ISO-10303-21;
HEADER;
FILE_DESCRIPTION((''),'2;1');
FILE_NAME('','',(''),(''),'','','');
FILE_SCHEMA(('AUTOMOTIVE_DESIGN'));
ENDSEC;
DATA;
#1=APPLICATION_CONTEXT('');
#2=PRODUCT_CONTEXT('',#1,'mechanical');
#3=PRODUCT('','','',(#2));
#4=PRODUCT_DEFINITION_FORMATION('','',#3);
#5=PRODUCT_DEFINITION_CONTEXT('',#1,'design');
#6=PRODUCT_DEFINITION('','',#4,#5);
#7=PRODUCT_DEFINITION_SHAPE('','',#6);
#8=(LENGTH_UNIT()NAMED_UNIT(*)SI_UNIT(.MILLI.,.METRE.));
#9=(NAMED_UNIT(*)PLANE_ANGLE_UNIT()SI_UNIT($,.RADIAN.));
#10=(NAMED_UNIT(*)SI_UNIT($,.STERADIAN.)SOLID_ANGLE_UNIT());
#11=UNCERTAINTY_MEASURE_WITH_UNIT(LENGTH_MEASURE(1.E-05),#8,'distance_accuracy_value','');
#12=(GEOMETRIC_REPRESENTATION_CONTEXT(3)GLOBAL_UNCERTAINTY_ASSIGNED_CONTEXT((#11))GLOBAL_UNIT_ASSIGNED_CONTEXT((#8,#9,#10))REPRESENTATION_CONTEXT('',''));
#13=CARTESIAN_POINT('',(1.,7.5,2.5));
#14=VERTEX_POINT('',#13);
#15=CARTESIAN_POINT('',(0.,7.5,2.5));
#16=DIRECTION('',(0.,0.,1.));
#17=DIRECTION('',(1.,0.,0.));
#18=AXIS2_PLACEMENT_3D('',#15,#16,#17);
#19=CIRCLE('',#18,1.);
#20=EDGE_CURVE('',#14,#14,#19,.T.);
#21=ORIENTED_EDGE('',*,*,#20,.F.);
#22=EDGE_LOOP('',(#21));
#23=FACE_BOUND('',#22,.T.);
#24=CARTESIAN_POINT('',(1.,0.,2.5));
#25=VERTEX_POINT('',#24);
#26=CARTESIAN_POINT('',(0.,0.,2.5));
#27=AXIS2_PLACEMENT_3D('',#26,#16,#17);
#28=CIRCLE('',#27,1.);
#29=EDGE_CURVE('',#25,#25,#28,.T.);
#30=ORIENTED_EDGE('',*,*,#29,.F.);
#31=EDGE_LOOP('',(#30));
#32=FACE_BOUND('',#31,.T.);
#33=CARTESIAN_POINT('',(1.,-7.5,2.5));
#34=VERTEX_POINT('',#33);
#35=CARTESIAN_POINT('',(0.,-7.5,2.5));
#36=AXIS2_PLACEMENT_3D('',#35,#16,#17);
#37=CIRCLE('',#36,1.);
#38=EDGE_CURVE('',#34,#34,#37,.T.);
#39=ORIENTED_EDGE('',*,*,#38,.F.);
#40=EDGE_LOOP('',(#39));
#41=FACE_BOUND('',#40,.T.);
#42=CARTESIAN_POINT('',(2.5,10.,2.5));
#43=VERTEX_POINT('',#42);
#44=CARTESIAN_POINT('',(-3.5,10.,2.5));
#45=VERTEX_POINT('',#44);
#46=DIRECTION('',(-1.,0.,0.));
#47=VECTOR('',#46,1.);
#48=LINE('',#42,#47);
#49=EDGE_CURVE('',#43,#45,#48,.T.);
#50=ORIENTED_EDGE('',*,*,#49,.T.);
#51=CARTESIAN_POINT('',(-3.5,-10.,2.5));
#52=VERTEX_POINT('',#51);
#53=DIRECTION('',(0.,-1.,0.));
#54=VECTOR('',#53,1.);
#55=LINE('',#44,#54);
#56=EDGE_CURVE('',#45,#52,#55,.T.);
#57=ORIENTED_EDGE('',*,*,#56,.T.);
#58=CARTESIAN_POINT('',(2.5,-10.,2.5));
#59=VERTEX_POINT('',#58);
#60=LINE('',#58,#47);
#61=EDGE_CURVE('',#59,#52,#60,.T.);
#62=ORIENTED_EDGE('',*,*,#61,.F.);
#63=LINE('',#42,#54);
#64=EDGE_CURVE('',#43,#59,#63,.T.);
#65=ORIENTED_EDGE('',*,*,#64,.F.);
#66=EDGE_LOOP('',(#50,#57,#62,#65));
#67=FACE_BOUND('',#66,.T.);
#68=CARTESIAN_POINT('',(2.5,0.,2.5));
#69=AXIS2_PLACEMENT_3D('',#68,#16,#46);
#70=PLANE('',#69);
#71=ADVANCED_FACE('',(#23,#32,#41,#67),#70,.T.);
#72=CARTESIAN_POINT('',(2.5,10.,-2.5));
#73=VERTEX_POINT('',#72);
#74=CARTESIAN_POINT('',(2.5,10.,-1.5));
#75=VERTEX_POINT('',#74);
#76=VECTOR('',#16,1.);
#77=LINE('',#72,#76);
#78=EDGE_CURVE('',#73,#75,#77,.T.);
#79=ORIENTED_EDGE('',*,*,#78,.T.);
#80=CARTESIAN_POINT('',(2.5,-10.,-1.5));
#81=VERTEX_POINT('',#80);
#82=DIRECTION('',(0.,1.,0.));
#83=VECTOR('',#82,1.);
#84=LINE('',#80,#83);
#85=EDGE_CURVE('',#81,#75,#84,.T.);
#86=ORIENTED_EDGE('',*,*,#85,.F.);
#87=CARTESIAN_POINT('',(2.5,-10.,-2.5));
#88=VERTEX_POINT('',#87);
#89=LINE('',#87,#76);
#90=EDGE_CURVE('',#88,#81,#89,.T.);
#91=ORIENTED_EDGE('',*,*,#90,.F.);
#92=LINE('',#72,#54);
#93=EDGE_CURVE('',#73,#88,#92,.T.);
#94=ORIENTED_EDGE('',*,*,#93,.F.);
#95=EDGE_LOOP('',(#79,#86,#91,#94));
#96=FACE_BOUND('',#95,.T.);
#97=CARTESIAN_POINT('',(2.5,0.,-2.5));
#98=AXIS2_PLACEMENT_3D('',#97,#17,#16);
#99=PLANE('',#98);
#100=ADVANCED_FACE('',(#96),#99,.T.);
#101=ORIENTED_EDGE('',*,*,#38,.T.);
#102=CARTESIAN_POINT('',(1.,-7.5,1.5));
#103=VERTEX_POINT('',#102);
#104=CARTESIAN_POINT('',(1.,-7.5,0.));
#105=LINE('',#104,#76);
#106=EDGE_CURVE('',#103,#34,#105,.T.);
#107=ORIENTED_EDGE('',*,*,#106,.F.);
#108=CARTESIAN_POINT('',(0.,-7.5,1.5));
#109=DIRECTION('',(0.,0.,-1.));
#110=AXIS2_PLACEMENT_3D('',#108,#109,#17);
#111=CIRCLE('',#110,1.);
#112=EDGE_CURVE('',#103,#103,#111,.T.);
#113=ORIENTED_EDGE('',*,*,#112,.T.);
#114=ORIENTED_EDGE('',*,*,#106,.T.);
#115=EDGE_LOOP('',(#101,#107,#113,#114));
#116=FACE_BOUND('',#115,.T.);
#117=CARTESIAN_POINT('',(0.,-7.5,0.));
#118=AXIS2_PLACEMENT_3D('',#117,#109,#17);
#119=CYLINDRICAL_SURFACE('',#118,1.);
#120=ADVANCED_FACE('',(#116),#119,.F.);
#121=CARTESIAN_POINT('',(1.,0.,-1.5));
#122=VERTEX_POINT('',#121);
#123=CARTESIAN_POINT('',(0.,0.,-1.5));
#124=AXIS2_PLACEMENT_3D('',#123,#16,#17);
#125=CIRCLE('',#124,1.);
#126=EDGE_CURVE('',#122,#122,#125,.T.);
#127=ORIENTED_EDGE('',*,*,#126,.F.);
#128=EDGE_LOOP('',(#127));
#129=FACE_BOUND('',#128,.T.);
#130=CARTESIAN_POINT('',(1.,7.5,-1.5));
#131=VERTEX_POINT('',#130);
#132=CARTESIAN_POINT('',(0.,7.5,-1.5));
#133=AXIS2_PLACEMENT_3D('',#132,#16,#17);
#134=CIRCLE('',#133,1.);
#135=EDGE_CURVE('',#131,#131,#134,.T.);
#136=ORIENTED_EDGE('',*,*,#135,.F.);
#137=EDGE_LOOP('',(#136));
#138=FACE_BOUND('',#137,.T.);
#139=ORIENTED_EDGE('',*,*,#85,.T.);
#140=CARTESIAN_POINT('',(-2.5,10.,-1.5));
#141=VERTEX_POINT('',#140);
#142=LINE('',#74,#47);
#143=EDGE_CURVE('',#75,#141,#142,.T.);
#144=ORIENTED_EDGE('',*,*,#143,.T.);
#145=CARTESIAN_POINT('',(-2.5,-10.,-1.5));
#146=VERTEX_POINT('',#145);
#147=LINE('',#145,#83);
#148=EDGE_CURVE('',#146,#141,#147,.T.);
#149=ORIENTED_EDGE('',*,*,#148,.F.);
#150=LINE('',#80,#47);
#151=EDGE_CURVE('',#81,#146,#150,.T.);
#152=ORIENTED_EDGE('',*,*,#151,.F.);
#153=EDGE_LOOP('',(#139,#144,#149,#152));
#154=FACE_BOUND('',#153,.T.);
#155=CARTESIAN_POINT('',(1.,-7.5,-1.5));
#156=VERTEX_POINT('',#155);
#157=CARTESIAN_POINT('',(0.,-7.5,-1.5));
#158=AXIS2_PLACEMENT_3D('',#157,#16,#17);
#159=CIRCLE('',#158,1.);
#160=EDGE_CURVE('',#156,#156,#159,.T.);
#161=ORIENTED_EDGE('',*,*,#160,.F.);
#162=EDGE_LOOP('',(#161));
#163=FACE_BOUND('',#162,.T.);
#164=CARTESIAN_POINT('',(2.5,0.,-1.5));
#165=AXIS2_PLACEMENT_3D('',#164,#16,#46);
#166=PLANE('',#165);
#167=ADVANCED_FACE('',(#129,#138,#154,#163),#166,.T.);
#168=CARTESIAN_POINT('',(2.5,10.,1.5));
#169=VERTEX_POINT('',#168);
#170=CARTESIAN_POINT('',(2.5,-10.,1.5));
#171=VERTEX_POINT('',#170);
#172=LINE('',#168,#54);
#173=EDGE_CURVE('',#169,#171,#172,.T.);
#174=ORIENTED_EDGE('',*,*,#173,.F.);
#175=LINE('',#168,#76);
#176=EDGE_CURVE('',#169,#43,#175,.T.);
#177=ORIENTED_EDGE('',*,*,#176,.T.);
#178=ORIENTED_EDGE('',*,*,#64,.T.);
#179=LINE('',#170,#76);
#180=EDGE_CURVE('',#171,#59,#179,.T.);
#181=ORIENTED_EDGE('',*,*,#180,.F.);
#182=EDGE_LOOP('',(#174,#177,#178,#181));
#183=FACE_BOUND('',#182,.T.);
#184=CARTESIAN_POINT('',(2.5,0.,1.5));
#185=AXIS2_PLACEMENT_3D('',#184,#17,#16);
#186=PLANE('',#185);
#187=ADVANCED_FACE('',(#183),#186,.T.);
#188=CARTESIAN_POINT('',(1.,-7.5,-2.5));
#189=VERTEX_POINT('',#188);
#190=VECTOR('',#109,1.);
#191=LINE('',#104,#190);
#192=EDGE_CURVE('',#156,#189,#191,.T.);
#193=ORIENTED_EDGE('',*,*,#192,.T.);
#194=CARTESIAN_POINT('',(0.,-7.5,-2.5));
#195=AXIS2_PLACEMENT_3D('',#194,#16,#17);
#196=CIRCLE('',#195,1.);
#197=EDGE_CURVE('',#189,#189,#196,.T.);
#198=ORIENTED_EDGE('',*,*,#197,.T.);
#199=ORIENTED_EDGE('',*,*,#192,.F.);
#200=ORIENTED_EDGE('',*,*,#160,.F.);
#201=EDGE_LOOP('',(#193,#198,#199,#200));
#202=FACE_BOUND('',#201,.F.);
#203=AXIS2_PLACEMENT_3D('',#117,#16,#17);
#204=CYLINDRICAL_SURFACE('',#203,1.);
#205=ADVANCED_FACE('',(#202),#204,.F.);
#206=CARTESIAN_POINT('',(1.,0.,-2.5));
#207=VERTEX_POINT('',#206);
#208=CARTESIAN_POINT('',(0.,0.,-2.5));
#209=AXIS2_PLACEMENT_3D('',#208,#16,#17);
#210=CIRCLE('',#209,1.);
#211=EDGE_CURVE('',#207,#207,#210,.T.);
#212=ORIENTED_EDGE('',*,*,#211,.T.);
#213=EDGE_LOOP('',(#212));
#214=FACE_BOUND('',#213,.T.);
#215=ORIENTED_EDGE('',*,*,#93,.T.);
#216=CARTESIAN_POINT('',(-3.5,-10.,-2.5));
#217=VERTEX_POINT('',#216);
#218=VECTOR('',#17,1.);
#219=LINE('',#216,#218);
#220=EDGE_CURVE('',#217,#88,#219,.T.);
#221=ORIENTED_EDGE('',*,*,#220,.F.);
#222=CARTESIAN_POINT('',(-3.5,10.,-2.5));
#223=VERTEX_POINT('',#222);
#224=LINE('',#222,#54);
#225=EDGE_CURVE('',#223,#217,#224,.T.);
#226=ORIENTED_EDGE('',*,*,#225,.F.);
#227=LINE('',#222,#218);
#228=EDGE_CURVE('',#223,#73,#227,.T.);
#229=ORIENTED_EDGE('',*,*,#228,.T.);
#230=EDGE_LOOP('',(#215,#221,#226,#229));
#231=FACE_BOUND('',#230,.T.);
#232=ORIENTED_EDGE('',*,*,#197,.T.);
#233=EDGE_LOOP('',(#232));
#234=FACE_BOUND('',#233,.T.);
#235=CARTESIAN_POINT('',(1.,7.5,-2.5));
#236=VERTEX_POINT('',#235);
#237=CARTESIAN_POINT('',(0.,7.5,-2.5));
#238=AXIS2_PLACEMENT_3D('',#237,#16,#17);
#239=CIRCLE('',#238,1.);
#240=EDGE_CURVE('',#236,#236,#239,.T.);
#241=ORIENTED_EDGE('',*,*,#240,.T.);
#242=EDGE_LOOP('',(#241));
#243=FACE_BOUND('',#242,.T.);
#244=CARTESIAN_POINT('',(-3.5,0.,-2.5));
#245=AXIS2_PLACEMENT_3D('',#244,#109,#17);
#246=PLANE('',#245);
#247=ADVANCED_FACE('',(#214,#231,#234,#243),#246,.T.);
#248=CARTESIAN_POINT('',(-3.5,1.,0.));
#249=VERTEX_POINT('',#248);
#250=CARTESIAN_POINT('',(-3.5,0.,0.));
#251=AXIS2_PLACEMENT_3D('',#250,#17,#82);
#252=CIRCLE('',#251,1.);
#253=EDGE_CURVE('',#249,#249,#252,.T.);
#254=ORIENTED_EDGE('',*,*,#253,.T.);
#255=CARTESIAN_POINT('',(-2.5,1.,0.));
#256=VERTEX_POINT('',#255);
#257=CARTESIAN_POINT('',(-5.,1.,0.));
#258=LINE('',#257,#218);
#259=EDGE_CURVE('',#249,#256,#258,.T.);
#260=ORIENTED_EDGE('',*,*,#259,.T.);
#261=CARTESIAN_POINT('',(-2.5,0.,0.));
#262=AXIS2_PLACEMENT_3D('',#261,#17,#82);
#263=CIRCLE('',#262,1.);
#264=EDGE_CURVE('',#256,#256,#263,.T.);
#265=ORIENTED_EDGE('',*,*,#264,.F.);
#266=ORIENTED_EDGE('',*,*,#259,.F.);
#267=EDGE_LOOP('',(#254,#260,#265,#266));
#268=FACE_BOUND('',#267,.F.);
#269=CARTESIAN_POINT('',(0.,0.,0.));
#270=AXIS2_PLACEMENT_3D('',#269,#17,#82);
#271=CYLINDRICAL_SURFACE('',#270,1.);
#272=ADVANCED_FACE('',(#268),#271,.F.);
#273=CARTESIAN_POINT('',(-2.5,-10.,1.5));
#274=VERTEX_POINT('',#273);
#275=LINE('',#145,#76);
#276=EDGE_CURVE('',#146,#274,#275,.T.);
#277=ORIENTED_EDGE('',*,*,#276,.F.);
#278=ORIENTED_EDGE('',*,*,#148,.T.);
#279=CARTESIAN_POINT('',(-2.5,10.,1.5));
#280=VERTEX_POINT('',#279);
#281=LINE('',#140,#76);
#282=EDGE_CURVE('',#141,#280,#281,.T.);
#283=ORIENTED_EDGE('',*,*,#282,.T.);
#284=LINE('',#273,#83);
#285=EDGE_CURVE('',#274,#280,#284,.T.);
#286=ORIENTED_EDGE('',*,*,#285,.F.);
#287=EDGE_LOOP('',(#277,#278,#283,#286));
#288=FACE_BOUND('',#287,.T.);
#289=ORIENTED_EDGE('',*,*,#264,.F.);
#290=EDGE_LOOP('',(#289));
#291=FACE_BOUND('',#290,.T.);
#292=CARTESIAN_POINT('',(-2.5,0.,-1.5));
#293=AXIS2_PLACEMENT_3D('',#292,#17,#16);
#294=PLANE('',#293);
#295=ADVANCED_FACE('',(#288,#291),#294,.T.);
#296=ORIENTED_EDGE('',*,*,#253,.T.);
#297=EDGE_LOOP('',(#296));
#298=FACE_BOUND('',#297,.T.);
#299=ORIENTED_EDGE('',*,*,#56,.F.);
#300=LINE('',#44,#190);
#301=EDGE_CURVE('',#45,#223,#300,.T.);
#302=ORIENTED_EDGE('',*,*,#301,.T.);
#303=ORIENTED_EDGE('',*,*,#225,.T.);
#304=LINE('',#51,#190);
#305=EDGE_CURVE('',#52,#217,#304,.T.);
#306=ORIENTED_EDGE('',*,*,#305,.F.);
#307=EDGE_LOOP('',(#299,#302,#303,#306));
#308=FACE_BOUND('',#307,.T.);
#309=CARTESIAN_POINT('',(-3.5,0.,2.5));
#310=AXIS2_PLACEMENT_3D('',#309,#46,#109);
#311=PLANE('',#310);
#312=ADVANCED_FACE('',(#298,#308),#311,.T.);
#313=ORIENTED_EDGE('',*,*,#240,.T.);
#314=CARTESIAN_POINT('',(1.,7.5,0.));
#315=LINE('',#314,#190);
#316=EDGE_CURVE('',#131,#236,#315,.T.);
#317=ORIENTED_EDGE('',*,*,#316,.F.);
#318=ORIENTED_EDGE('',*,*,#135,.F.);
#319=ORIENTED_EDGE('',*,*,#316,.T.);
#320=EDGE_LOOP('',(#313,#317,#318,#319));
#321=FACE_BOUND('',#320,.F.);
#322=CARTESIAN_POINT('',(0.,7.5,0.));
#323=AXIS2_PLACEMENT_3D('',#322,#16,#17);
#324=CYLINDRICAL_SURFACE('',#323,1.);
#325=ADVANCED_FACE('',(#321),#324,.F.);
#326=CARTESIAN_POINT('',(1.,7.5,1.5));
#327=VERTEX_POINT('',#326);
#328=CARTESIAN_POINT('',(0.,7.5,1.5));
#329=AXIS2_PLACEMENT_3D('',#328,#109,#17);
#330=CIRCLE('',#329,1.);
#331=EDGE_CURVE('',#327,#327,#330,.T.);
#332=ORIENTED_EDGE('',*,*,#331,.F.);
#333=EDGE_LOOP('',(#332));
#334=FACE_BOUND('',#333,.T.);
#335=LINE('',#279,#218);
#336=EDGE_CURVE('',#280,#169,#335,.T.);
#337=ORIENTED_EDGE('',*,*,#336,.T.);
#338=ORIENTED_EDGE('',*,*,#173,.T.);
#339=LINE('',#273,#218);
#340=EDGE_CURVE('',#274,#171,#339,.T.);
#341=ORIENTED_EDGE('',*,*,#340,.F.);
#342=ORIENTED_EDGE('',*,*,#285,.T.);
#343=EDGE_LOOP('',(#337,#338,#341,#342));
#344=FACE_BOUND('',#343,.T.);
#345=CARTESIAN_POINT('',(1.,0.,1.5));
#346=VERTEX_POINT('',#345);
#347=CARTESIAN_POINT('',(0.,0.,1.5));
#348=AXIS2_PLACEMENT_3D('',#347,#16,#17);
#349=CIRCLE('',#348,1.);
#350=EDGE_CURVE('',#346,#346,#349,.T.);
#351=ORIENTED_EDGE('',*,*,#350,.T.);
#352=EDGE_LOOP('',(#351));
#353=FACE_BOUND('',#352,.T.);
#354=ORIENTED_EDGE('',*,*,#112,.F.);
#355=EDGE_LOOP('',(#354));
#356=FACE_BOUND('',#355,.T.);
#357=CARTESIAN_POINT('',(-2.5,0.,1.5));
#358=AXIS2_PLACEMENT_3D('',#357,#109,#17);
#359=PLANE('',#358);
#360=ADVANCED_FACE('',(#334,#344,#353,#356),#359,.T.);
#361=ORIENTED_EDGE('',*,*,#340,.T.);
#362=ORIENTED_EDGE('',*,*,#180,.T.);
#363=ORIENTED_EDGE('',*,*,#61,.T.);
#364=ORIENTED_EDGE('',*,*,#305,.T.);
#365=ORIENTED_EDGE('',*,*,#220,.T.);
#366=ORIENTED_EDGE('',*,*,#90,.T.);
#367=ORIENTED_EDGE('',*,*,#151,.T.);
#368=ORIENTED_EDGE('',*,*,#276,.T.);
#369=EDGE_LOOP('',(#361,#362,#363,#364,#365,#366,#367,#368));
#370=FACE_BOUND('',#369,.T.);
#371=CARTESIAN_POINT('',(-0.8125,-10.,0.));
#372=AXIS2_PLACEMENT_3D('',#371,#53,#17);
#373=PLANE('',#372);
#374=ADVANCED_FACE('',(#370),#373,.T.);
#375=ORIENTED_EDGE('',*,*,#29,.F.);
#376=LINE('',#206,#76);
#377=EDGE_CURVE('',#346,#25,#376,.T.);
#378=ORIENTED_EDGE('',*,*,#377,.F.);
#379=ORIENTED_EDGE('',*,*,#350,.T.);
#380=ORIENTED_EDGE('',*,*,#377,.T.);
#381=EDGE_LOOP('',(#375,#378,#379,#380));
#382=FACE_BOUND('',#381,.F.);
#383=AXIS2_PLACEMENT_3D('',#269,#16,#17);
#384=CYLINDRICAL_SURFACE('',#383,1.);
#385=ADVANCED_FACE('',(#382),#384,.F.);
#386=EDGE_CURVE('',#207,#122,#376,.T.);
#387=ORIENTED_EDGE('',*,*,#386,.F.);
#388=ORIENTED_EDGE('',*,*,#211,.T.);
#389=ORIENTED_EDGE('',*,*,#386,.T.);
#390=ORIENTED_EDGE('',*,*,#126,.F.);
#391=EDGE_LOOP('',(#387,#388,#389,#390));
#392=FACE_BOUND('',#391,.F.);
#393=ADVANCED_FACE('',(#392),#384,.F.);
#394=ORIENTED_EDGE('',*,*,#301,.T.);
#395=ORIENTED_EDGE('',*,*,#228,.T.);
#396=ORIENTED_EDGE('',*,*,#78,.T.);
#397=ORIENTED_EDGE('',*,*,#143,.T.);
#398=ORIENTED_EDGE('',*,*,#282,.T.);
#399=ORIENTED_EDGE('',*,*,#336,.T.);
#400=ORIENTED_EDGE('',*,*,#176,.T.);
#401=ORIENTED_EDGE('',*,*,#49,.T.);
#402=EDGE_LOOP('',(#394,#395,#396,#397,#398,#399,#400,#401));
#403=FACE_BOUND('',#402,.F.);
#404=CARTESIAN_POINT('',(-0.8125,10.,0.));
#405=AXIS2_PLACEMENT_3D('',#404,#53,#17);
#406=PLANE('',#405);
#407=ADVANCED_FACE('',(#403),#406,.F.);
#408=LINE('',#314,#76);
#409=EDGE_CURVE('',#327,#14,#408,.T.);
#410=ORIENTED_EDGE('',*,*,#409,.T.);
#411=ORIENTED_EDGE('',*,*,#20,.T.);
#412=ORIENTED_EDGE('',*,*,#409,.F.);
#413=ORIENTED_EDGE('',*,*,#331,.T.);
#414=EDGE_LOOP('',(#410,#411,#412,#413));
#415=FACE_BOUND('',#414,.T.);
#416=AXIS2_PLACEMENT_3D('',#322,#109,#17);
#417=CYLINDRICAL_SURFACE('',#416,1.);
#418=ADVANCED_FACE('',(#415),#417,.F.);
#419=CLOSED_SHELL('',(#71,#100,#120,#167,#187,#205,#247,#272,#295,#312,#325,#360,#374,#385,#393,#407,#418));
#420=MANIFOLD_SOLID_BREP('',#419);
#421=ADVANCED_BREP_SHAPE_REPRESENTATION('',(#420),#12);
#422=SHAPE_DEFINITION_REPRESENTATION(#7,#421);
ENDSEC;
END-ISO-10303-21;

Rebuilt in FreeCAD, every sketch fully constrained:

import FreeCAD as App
import Part
import Sketcher
Q = App.Units.Quantity

doc = App.newDocument("Part")
body = doc.addObject("PartDesign::Body", "Body")

sketch1 = body.newObject("Sketcher::SketchObject", "Sketch")
sketch1.AttachmentSupport = (doc.getObject("XZ_Plane"), [""])
sketch1.MapMode = "FlatFace"
sketch1.addGeometry([
    Part.LineSegment(App.Vector(-2.5, 1.5, 0), App.Vector(2.5, 1.5, 0)),
    Part.LineSegment(App.Vector(2.5, 1.5, 0), App.Vector(2.5, 2.5, 0)),
    Part.LineSegment(App.Vector(2.5, 2.5, 0), App.Vector(-3.5, 2.5, 0)),
    Part.LineSegment(App.Vector(-3.5, 2.5, 0), App.Vector(-3.5, -2.5, 0)),
    Part.LineSegment(App.Vector(-3.5, -2.5, 0), App.Vector(2.5, -2.5, 0)),
    Part.LineSegment(App.Vector(2.5, -2.5, 0), App.Vector(2.5, -1.5, 0)),
    Part.LineSegment(App.Vector(2.5, -1.5, 0), App.Vector(-2.5, -1.5, 0)),
    Part.LineSegment(App.Vector(-2.5, -1.5, 0), App.Vector(-2.5, 1.5, 0)),
], False)
sketch1.addConstraint([
    Sketcher.Constraint("Coincident", 0, 2, 1, 1),
    Sketcher.Constraint("Coincident", 1, 2, 2, 1),
    Sketcher.Constraint("Coincident", 2, 2, 3, 1),
    Sketcher.Constraint("Coincident", 3, 2, 4, 1),
    Sketcher.Constraint("Coincident", 4, 2, 5, 1),
    Sketcher.Constraint("Coincident", 5, 2, 6, 1),
    Sketcher.Constraint("Coincident", 6, 2, 7, 1),
    Sketcher.Constraint("Coincident", 7, 2, 0, 1),
    Sketcher.Constraint("Horizontal", 0),
    Sketcher.Constraint("Vertical", 1),
    Sketcher.Constraint("Horizontal", 2),
    Sketcher.Constraint("Vertical", 3),
    Sketcher.Constraint("Horizontal", 4),
    Sketcher.Constraint("Vertical", 5),
    Sketcher.Constraint("Horizontal", 6),
    Sketcher.Constraint("Vertical", 7),
    Sketcher.Constraint("Symmetric", 0, 2, 6, 2, -1, 1),
    Sketcher.Constraint("Symmetric", 1, 2, 4, 2, -1),
    Sketcher.Constraint("Equal", 6, 3),
    Sketcher.Constraint("DistanceX", 0, 1, 0, 2, Q("5 mm")),
    Sketcher.Constraint("DistanceX", 2, 2, 2, 1, Q("6 mm")),
    Sketcher.Constraint("DistanceY", 1, 1, 1, 2, Q("1 mm")),
])
pad1 = body.newObject("PartDesign::Pad", "Pad")
pad1.Profile = sketch1
pad1.Length = 20
pad1.Midplane = True

sketch2 = body.newObject("Sketcher::SketchObject", "Sketch001")
sketch2.AttachmentSupport = (doc.getObject("XY_Plane"), [""])
sketch2.MapMode = "FlatFace"
sketch2.addGeometry([
    Part.Circle(App.Vector(0, 7.5, 0), App.Vector(0, 0, 1), 1),
    Part.Circle(App.Vector(0, -7.5, 0), App.Vector(0, 0, 1), 1),
    Part.Circle(App.Vector(0, 0, 0), App.Vector(0, 0, 1), 1),
], False)
sketch2.addConstraint([
    Sketcher.Constraint("Coincident", 2, 3, -1, 1),
    Sketcher.Constraint("Equal", 0, 1),
    Sketcher.Constraint("Equal", 1, 2),
    Sketcher.Constraint("Symmetric", 0, 3, 1, 3, -1, 1),
    Sketcher.Constraint("PointOnObject", 0, 3, -2),
    Sketcher.Constraint("Diameter", 0, Q("2 mm")),
    Sketcher.Constraint("DistanceY", 1, 3, 0, 3, Q("15 mm")),
])
pocket1 = body.newObject("PartDesign::Pocket", "Pocket")
pocket1.Profile = sketch2
pocket1.Length = 5
pocket1.Midplane = True

sketch3 = body.newObject("Sketcher::SketchObject", "Sketch002")
sketch3.AttachmentSupport = (doc.getObject("YZ_Plane"), [""])
sketch3.MapMode = "FlatFace"
sketch3.addGeometry(Part.Circle(App.Vector(0, 0, 0), App.Vector(0, 0, 1), 1), False)
sketch3.addConstraint([
    Sketcher.Constraint("Coincident", 0, 3, -1, 1),
    Sketcher.Constraint("Diameter", 0, Q("2 mm")),
])
pocket2 = body.newObject("PartDesign::Pocket", "Pocket001")
pocket2.Profile = sketch3
pocket2.Length = 10
pocket2.Midplane = True

doc.recompute()
